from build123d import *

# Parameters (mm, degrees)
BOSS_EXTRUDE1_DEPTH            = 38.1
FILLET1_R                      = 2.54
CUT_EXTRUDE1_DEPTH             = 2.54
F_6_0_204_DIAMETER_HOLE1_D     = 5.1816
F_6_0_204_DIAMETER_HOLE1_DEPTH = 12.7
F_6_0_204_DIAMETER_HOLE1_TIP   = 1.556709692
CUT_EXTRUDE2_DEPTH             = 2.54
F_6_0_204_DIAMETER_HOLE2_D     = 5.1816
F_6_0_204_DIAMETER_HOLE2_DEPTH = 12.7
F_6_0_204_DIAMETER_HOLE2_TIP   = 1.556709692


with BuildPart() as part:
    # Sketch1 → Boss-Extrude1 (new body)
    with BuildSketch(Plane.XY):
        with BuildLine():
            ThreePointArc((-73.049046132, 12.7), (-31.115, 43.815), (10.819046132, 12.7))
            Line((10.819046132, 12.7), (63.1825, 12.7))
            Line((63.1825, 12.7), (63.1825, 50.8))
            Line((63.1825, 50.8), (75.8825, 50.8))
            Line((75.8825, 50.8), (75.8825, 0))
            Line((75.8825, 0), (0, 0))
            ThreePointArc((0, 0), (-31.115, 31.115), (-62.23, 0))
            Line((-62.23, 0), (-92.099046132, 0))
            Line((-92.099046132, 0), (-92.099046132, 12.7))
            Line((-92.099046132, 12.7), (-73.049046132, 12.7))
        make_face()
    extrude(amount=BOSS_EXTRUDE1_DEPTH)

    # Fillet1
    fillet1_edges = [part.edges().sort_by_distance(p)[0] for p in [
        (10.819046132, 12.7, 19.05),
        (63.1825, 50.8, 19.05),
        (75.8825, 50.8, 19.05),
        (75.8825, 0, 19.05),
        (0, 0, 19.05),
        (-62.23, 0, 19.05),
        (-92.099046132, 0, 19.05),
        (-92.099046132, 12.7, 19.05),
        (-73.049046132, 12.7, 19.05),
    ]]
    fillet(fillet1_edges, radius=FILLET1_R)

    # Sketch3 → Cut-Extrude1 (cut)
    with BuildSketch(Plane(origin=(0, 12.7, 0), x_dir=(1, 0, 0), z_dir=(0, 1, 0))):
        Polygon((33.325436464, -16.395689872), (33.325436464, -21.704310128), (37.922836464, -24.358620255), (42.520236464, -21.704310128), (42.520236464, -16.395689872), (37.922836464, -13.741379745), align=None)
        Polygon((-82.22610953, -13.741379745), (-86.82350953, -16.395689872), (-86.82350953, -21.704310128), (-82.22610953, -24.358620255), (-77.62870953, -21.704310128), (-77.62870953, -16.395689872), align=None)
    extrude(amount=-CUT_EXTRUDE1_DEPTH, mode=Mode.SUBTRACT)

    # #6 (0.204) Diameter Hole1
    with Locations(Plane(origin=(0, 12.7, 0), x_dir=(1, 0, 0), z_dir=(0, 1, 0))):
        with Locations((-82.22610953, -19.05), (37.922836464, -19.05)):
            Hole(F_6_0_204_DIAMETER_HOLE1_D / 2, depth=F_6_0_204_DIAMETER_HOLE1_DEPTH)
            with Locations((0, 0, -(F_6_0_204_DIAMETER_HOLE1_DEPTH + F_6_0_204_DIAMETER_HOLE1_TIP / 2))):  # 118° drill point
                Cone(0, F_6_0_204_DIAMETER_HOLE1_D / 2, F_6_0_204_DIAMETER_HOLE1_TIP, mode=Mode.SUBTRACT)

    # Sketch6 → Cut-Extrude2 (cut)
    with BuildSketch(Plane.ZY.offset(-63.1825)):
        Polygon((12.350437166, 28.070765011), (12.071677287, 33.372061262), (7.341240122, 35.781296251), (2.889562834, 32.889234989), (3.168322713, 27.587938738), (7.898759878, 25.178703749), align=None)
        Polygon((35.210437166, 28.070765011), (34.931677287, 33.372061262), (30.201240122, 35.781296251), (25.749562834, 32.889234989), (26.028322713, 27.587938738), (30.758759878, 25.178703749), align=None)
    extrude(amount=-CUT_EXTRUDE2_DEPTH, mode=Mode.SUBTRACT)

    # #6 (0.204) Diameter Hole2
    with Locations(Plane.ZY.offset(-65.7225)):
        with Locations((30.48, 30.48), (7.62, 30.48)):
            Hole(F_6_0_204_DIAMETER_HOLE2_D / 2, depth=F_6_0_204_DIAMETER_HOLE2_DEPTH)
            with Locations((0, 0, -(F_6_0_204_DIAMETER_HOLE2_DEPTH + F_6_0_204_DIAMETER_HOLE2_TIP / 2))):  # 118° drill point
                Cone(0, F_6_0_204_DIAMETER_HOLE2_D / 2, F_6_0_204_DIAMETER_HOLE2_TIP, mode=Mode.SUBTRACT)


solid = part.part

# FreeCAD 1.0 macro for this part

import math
import FreeCAD as App
import Part
import Sketcher
Q = App.Units.Quantity


def edges_at(feature, points):
    """Names of the edges that pass closest to the given points."""
    edges = feature.Shape.Edges
    near = lambda p: min(range(len(edges)), key=lambda i: edges[i].distToShape(Part.Vertex(*p))[0])
    return sorted({f"Edge{near(p) + 1}" for p in points})


def add_polygon(sketch, points):
    """Adds a closed chain of lines whose ends are joined by coincident constraints."""
    first, n = sketch.GeometryCount, len(points)
    for a, b in zip(points, points[1:] + points[:1]):
        sketch.addGeometry(Part.LineSegment(App.Vector(*a, 0), App.Vector(*b, 0)), False)
    for i in range(n):
        sketch.addConstraint(Sketcher.Constraint("Coincident", first + i, 2, first + (i + 1) % n, 1))

doc = App.newDocument("Part")
body = doc.addObject("PartDesign::Body", "Body")

# Sketch on XY plane
sketch1 = doc.addObject("Sketcher::SketchObject", "Sketch")
body.addObject(sketch1)
sketch1.AttachmentSupport = (doc.XY_Plane, [""])
sketch1.MapMode = "FlatFace"
sketch1.addGeometry([
    Part.ArcOfCircle(Part.Circle(App.Vector(-31, 0, 0), App.Vector(0, 0, 1), 44), math.radians(17), math.radians(163)),  # 0
    Part.LineSegment(App.Vector(-73, 13, 0), App.Vector(-92, 13, 0)),  # 1
    Part.LineSegment(App.Vector(-92, 13, 0), App.Vector(-92, 0, 0)),  # 2
    Part.LineSegment(App.Vector(-92, 0, 0), App.Vector(-62, 0, 0)),  # 3
    Part.ArcOfCircle(Part.Circle(App.Vector(-31, 0, 0), App.Vector(0, 0, 1), 31), math.radians(0), math.radians(180)),  # 4
    Part.LineSegment(App.Vector(0, 0, 0), App.Vector(76, 0, 0)),  # 5
    Part.LineSegment(App.Vector(76, 0, 0), App.Vector(76, 51, 0)),  # 6
    Part.LineSegment(App.Vector(76, 51, 0), App.Vector(63, 51, 0)),  # 7
    Part.LineSegment(App.Vector(63, 51, 0), App.Vector(63, 13, 0)),  # 8
    Part.LineSegment(App.Vector(63, 13, 0), App.Vector(11, 13, 0)),  # 9
], False)
sketch1.addConstraint([
    Sketcher.Constraint("Coincident", 0, 2, 1, 1),
    Sketcher.Constraint("Coincident", 1, 2, 2, 1),
    Sketcher.Constraint("Coincident", 2, 2, 3, 1),
    Sketcher.Constraint("Coincident", 3, 2, 4, 2),
    Sketcher.Constraint("Coincident", 4, 1, 5, 1),
    Sketcher.Constraint("Coincident", 5, 2, 6, 1),
    Sketcher.Constraint("Coincident", 6, 2, 7, 1),
    Sketcher.Constraint("Coincident", 7, 2, 8, 1),
    Sketcher.Constraint("Coincident", 8, 2, 9, 1),
    Sketcher.Constraint("Coincident", 9, 2, 0, 1),
    Sketcher.Constraint("Horizontal", 1),
    Sketcher.Constraint("Vertical", 2),
    Sketcher.Constraint("Horizontal", 3),
    Sketcher.Constraint("Horizontal", 5),
    Sketcher.Constraint("Vertical", 6),
    Sketcher.Constraint("Horizontal", 7),
    Sketcher.Constraint("Vertical", 8),
    Sketcher.Constraint("Horizontal", 9),
    Sketcher.Constraint("Coincident", 4, 1, -1, 1),
    Sketcher.Constraint("Coincident", 4, 3, 0, 3),
    Sketcher.Constraint("PointOnObject", 0, 3, -1),
    Sketcher.Constraint("PointOnObject", 2, 2, -1),
    Sketcher.Constraint("Horizontal", 1, 2, 8, 2),
    Sketcher.Constraint("Equal", 7, 2),
    Sketcher.Constraint("DistanceY", 6, 1, 6, 2, Q("2 in")),
    Sketcher.Constraint("DistanceX", 7, 2, 7, 1, Q("0.5 in")),
    Sketcher.Constraint("Radius", 0, Q("1.725 in")),
    Sketcher.Constraint("Radius", 4, Q("1.225 in")),
    Sketcher.Constraint("DistanceX", 1, 2, 1, 1, Q("0.75 in")),
    Sketcher.Constraint("DistanceX", 5, 1, 5, 2, Q("2.9875 in")),
])
pad1 = doc.addObject("PartDesign::Pad", "Pad")
body.addObject(pad1)
pad1.Profile = sketch1
pad1.Length = Q("1.5 in")
doc.recompute()

fillet = doc.addObject("PartDesign::Fillet", "Fillet")
body.addObject(fillet)
fillet.Base = (pad1, edges_at(pad1, [
    (10.819, 12.7, 19.05),
    (63.182, 50.8, 19.05),
    (75.882, 50.8, 19.05),
    (75.882, 0, 19.05),
    (0, 0, 19.05),
    (-62.23, 0, 19.05),
    (-92.099, 0, 19.05),
    (-92.099, 12.7, 19.05),
    (-73.049, 12.7, 19.05),
]))
fillet.Radius = Q("0.1 in")

# Sketch on XZ plane
sketch2 = doc.addObject("Sketcher::SketchObject", "Sketch001")
body.addObject(sketch2)
sketch2.AttachmentSupport = (doc.XZ_Plane, [""])
sketch2.MapMode = "FlatFace"
sketch2.AttachmentOffset = App.Placement(App.Vector(0, 0, -0.5 * 25.4), App.Rotation())
add_polygon(sketch2, [(33, 16), (33, 22), (38, 24), (43, 22), (43, 16), (38, 14)])  # lines 0-5
add_polygon(sketch2, [(-82, 14), (-87, 16), (-87, 22), (-82, 24), (-78, 22), (-78, 16)])  # lines 6-11
sketch2.addConstraint([
    Sketcher.Constraint("Vertical", 0),
    Sketcher.Constraint("Vertical", 3),
    Sketcher.Constraint("Vertical", 7),
    Sketcher.Constraint("Vertical", 10),
    Sketcher.Constraint("Parallel", 1, 4),
    Sketcher.Constraint("Parallel", 2, 5),
    Sketcher.Constraint("Parallel", 5, 6),
    Sketcher.Constraint("Parallel", 4, 8),
    Sketcher.Constraint("Parallel", 6, 9),
    Sketcher.Constraint("Parallel", 8, 11),
    Sketcher.Constraint("Horizontal", 0, 2, 2, 2),
    Sketcher.Constraint("Horizontal", 3, 2, 5, 2),
    Sketcher.Constraint("Horizontal", 5, 2, 6, 2),
    Sketcher.Constraint("Horizontal", 2, 2, 7, 2),
    Sketcher.Constraint("Horizontal", 1, 2, 8, 2),
    Sketcher.Constraint("Horizontal", 7, 2, 9, 2),
    Sketcher.Constraint("Horizontal", 6, 2, 10, 2),
    Sketcher.Constraint("Vertical", 1, 2, 4, 2),
    Sketcher.Constraint("Angle", 1, Q("30 deg")),
    Sketcher.Constraint("DistanceX", 0, 2, 1, 2, Q("0.181 in")),
    Sketcher.Constraint("DistanceY", 0, 1, 0, 2, 5.30862),
    Sketcher.Constraint("DistanceY", -1, 1, 0, 2, 21.70431),
    Sketcher.Constraint("DistanceX", 6, 2, -1, 1, 86.82351),
    Sketcher.Constraint("DistanceX", -1, 1, 0, 2, 33.325436),
])
pocket1 = doc.addObject("PartDesign::Pocket", "Pocket")
body.addObject(pocket1)
pocket1.Profile = sketch2
pocket1.Length = Q("0.1 in")
pocket1.Reversed = True

# Sketch on XZ plane
sketch3 = doc.addObject("Sketcher::SketchObject", "Sketch002")
body.addObject(sketch3)
sketch3.AttachmentSupport = (doc.XZ_Plane, [""])
sketch3.MapMode = "FlatFace"
sketch3.AttachmentOffset = App.Placement(App.Vector(0, 0, -0.5 * 25.4), App.Rotation())
sketch3.addGeometry([
    Part.Circle(App.Vector(-82.2, 19.1, 0), App.Vector(0, 0, 1), 2.6),
    Part.Circle(App.Vector(37.9, 19.1, 0), App.Vector(0, 0, 1), 2.6),
], False)
sketch3.addConstraint([
    Sketcher.Constraint("Equal", 0, 1),
    Sketcher.Constraint("Horizontal", 0, 3, 1, 3),
    Sketcher.Constraint("Diameter", 0, Q("0.204 in")),
    Sketcher.Constraint("DistanceY", -1, 1, 0, 3, Q("0.75 in")),
    Sketcher.Constraint("DistanceX", 0, 3, -1, 1, 82.22611),
    Sketcher.Constraint("DistanceX", -1, 1, 1, 3, 37.922836),
])
doc.recompute()
hole = doc.addObject("PartDesign::Hole", "Hole")
body.addObject(hole)
hole.Profile = sketch3
hole.ThreadType = "None"
hole.Diameter = Q("0.204 in")
hole.DepthType = "Dimension"
hole.Depth = Q("0.5 in")
hole.DrillPoint = "Angled"
hole.DrillPointAngle = 118
hole.Reversed = True

# Sketch on YZ plane
sketch4 = doc.addObject("Sketcher::SketchObject", "Sketch003")
body.addObject(sketch4)
sketch4.AttachmentSupport = (doc.YZ_Plane, [""])
sketch4.MapMode = "FlatFace"
sketch4.AttachmentOffset = App.Placement(App.Vector(0, 0, 2.4875 * 25.4), App.Rotation())
add_polygon(sketch4, [(28, 12), (33, 12), (36, 7), (33, 3), (28, 3), (25, 8)])  # lines 0-5
add_polygon(sketch4, [(28, 35), (33, 35), (36, 30), (33, 26), (28, 26), (25, 31)])  # lines 6-11
sketch4.addConstraint([
    Sketcher.Constraint("Parallel", 0, 3),
    Sketcher.Constraint("Parallel", 1, 4),
    Sketcher.Constraint("Parallel", 2, 5),
    Sketcher.Constraint("Parallel", 3, 6),
    Sketcher.Constraint("Parallel", 4, 7),
    Sketcher.Constraint("Parallel", 5, 8),
    Sketcher.Constraint("Parallel", 6, 9),
    Sketcher.Constraint("Parallel", 7, 10),
    Sketcher.Constraint("Parallel", 8, 11),
    Sketcher.Constraint("Vertical", 0, 2, 6, 2),
    Sketcher.Constraint("Vertical", 1, 2, 7, 2),
    Sketcher.Constraint("Vertical", 2, 2, 8, 2),
    Sketcher.Constraint("Vertical", 3, 2, 9, 2),
    Sketcher.Constraint("Vertical", 4, 2, 10, 2),
    Sketcher.Constraint("Equal", 0, 1),
    Sketcher.Constraint("Equal", 1, 2),
    Sketcher.Constraint("Equal", 2, 3),
    Sketcher.Constraint("DistanceY", 0, 2, 6, 2, Q("0.9 in")),
    Sketcher.Constraint("Distance", 0, 5.30862),
    Sketcher.Constraint("DistanceX", -1, 1, 0, 2, 33.372061),
    Sketcher.Constraint("DistanceY", -1, 1, 1, 2, 7.34124),
    Sketcher.Constraint("DistanceX", -1, 1, 3, 2, 27.587939),
    Sketcher.Constraint("DistanceY", -1, 1, 4, 2, 7.89876),
    Sketcher.Constraint("DistanceX", 2, 2, 1, 2, 2.892061),
])
pocket2 = doc.addObject("PartDesign::Pocket", "Pocket001")
body.addObject(pocket2)
pocket2.Profile = sketch4
pocket2.Length = Q("0.1 in")
pocket2.Reversed = True

# Sketch on YZ plane
sketch5 = doc.addObject("Sketcher::SketchObject", "Sketch004")
body.addObject(sketch5)
sketch5.AttachmentSupport = (doc.YZ_Plane, [""])
sketch5.MapMode = "FlatFace"
sketch5.AttachmentOffset = App.Placement(App.Vector(0, 0, 2.5875 * 25.4), App.Rotation())
sketch5.addGeometry([
    Part.Circle(App.Vector(30.5, 30.5, 0), App.Vector(0, 0, 1), 2.6),
    Part.Circle(App.Vector(30.5, 7.6, 0), App.Vector(0, 0, 1), 2.6),
], False)
sketch5.addConstraint([
    Sketcher.Constraint("Equal", 0, 1),
    Sketcher.Constraint("Vertical", 0, 3, 1, 3),
    Sketcher.Constraint("Diameter", 0, Q("0.204 in")),
    Sketcher.Constraint("DistanceX", -1, 1, 0, 3, Q("1.2 in")),
    Sketcher.Constraint("DistanceY", -1, 1, 0, 3, Q("1.2 in")),
    Sketcher.Constraint("DistanceY", -1, 1, 1, 3, Q("0.3 in")),
])
doc.recompute()
hole2 = doc.addObject("PartDesign::Hole", "Hole001")
body.addObject(hole2)
hole2.Profile = sketch5
hole2.ThreadType = "None"
hole2.Diameter = Q("0.204 in")
hole2.DepthType = "Dimension"
hole2.Depth = Q("0.5 in")
hole2.DrillPoint = "Angled"
hole2.DrillPointAngle = 118
hole2.Reversed = True

doc.recompute()
